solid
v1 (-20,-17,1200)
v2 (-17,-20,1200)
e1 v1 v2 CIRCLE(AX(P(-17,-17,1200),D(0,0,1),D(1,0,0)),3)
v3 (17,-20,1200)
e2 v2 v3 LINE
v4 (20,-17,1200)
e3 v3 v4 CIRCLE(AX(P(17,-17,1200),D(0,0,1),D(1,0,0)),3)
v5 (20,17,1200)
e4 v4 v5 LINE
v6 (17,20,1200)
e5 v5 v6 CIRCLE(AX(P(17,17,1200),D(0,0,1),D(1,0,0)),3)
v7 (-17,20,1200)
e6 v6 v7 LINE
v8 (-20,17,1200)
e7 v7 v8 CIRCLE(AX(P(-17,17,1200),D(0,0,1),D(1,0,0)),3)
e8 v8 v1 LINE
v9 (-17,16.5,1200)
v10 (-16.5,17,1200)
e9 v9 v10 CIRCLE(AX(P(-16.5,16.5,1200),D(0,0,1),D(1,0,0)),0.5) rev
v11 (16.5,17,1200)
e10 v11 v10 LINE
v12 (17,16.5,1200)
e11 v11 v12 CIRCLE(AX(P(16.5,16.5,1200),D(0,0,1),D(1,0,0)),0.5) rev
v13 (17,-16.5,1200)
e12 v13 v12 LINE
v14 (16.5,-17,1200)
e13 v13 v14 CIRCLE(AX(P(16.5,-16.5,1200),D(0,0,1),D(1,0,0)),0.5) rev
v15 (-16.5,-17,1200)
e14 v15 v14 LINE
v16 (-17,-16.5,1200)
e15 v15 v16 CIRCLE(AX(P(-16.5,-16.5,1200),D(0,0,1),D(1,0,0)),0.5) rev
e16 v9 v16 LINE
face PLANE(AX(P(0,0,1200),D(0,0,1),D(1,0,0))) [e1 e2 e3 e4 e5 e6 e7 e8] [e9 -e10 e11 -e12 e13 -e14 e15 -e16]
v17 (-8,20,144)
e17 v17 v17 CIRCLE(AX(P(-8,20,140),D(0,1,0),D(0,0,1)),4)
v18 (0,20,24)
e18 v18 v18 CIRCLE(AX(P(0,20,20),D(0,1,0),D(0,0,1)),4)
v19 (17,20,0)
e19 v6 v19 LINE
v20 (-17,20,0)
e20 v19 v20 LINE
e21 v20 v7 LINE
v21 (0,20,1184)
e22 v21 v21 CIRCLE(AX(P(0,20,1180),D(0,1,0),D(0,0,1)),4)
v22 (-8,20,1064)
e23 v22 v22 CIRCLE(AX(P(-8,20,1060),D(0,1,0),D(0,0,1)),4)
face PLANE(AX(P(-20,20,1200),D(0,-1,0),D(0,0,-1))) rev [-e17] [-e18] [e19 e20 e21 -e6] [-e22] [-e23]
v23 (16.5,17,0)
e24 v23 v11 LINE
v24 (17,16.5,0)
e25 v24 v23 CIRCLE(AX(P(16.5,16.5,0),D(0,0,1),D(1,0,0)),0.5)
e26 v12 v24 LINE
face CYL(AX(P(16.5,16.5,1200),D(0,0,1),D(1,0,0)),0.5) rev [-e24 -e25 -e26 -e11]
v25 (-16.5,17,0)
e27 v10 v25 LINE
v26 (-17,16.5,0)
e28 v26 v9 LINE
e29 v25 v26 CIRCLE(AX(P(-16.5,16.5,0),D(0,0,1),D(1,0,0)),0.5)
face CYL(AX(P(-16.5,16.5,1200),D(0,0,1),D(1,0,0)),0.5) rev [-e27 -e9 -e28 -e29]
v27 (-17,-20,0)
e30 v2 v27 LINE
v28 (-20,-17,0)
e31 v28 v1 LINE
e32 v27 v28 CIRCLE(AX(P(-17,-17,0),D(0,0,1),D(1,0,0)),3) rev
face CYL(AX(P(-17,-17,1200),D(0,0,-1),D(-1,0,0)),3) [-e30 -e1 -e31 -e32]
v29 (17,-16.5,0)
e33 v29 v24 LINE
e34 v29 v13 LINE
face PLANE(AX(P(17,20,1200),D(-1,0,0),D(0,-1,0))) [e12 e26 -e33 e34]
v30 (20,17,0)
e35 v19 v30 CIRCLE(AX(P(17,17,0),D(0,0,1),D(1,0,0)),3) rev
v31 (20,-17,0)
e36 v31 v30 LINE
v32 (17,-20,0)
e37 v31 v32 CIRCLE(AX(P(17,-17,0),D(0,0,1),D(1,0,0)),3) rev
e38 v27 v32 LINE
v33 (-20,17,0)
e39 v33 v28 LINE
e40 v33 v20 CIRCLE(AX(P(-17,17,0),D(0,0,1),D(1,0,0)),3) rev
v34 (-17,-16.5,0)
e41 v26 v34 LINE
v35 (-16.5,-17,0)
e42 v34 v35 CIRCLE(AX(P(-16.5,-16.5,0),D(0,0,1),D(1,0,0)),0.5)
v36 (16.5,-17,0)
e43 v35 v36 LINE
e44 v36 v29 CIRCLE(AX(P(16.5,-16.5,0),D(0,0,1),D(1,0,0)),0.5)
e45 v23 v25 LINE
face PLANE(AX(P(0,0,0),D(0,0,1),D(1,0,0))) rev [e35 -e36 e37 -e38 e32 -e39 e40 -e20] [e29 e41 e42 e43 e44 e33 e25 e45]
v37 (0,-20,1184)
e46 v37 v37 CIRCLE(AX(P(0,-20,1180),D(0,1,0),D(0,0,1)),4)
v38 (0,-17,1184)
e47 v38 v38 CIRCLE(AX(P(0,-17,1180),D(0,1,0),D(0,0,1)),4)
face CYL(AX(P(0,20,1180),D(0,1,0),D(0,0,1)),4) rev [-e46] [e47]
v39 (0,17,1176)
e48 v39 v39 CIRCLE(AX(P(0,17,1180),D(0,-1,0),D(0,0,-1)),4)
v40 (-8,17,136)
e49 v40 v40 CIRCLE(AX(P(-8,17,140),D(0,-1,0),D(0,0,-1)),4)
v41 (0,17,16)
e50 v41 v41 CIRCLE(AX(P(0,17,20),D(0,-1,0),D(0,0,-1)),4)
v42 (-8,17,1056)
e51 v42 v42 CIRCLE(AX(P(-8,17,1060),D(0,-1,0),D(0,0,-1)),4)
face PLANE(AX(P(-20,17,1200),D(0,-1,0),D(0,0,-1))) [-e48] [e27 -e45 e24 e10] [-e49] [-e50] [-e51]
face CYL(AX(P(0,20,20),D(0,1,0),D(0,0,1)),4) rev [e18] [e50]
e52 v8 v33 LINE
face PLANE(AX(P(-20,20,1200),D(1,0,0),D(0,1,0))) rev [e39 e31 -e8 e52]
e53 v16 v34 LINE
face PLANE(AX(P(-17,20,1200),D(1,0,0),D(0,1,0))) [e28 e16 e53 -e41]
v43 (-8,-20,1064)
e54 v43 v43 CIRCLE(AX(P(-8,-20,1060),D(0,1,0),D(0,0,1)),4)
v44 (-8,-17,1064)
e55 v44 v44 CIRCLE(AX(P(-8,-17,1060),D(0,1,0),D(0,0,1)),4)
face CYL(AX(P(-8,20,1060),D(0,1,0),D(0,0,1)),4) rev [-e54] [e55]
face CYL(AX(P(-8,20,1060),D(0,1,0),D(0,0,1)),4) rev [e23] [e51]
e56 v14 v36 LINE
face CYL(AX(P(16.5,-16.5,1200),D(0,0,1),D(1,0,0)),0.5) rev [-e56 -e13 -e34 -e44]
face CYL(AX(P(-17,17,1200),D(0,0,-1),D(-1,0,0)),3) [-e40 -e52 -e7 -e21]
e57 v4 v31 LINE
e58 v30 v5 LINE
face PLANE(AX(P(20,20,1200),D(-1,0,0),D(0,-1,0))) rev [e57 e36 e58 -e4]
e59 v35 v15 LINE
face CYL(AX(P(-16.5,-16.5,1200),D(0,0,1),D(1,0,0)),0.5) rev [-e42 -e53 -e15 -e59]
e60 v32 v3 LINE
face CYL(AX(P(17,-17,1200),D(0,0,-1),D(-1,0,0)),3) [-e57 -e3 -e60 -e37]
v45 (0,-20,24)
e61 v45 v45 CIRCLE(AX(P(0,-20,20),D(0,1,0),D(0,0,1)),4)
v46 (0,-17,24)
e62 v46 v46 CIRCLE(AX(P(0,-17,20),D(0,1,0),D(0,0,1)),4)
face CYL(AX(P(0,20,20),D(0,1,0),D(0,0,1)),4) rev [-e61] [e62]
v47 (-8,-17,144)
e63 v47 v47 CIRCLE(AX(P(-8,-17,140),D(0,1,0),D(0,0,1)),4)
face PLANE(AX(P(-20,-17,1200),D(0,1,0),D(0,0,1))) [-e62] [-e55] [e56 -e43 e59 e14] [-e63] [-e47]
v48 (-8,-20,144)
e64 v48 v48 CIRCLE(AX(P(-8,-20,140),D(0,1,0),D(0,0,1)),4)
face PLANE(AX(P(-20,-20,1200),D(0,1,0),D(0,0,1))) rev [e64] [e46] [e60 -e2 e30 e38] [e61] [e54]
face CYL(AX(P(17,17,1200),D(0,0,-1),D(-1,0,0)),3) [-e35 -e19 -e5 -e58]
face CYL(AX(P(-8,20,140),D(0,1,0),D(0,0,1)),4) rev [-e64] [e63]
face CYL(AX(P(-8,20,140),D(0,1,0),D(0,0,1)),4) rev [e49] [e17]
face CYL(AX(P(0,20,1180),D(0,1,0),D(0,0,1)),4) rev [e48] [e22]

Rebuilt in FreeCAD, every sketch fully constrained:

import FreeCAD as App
import Part
import Sketcher
from FreeCAD import Vector
Q = App.Units.Quantity


def edges_at(feature, points):
    """Names of the edges that pass closest to the given points."""
    edges = feature.Shape.Edges
    near = lambda p: min(range(len(edges)), key=lambda i: edges[i].distToShape(Part.Vertex(*p))[0])
    return sorted({f"Edge{near(p) + 1}" for p in points})

doc = App.newDocument("Part")
params = doc.addObject("Spreadsheet::Sheet", "Params")
for row, (alias, value) in enumerate([
    ("sketch1_width", "40 mm"),
    ("sketch1_width2", "34 mm"),
    ("pad1_length", "1200 mm"),
    ("fillet_radius", "0.5 mm"),
    ("fillet2_radius", "3 mm"),
    ("sketch2_diameter", "8 mm"),
    ("hole_diameter", "8 mm"),
    ("sketch3_diameter", "8 mm"),
    ("hole2_diameter", "8 mm"),
], start=1):
    params.set(f"A{row}", alias)
    params.set(f"B{row}", "=" + value)
    params.setAlias(f"B{row}", alias)

body = doc.addObject("PartDesign::Body", "Body")

sketch1 = body.newObject("Sketcher::SketchObject", "Sketch")
sketch1.AttachmentSupport = (doc.getObject("XY_Plane"), [""])
sketch1.MapMode = "FlatFace"
sketch1.addGeometry([
    Part.LineSegment(Vector(-20, 20, 0), Vector(-20, -20, 0)),
    Part.LineSegment(Vector(-20, -20, 0), Vector(20, -20, 0)),
    Part.LineSegment(Vector(20, -20, 0), Vector(20, 20, 0)),
    Part.LineSegment(Vector(20, 20, 0), Vector(-20, 20, 0)),
    Part.LineSegment(Vector(17, -17, 0), Vector(-17, -17, 0)),
    Part.LineSegment(Vector(-17, -17, 0), Vector(-17, 17, 0)),
    Part.LineSegment(Vector(-17, 17, 0), Vector(17, 17, 0)),
    Part.LineSegment(Vector(17, 17, 0), Vector(17, -17, 0)),
], False)
sketch1.addConstraint([
    Sketcher.Constraint("Coincident", 0, 2, 1, 1),
    Sketcher.Constraint("Coincident", 1, 2, 2, 1),
    Sketcher.Constraint("Coincident", 2, 2, 3, 1),
    Sketcher.Constraint("Coincident", 3, 2, 0, 1),
    Sketcher.Constraint("Coincident", 4, 2, 5, 1),
    Sketcher.Constraint("Coincident", 5, 2, 6, 1),
    Sketcher.Constraint("Coincident", 6, 2, 7, 1),
    Sketcher.Constraint("Coincident", 7, 2, 4, 1),
    Sketcher.Constraint("Vertical", 0),
    Sketcher.Constraint("Horizontal", 1),
    Sketcher.Constraint("Vertical", 2),
    Sketcher.Constraint("Horizontal", 3),
    Sketcher.Constraint("Horizontal", 4),
    Sketcher.Constraint("Vertical", 5),
    Sketcher.Constraint("Horizontal", 6),
    Sketcher.Constraint("Vertical", 7),
    Sketcher.Constraint("Symmetric", 0, 2, 2, 2, -1, 1),
    Sketcher.Constraint("Symmetric", 4, 2, 6, 2, -1, 1),
    Sketcher.Constraint("Equal", 3, 0),
    Sketcher.Constraint("Equal", 6, 5),
    Sketcher.Constraint("DistanceX", 1, 1, 1, 2, Q("40 mm")),
    Sketcher.Constraint("DistanceX", 4, 2, 4, 1, Q("34 mm")),
])
sketch1.setExpression("Constraints[20]", "Params.sketch1_width")
sketch1.setExpression("Constraints[21]", "Params.sketch1_width2")
pad1 = body.newObject("PartDesign::Pad", "Pad")
pad1.Profile = sketch1
pad1.setExpression("Length", "Params.pad1_length")
doc.recompute()

fillet = body.newObject("PartDesign::Fillet", "Fillet")
fillet.Base = (pad1, edges_at(pad1, [
    (17, -17, 600),
    (17, 17, 600),
    (-17, 17, 600),
    (-17, -17, 600),
]))
fillet.setExpression("Radius", "Params.fillet_radius")
doc.recompute()

fillet2 = body.newObject("PartDesign::Fillet", "Fillet001")
fillet2.Base = (fillet, edges_at(fillet, [
    (20, -20, 600),
    (-20, -20, 600),
    (-20, 20, 600),
    (20, 20, 600),
]))
fillet2.setExpression("Radius", "Params.fillet2_radius")

sketch2 = body.newObject("Sketcher::SketchObject", "Sketch001")
sketch2.AttachmentSupport = (doc.getObject("XZ_Plane"), [""])
sketch2.MapMode = "FlatFace"
sketch2.AttachmentOffset = App.Placement(Vector(0, 0, -20), App.Rotation())
sketch2.addGeometry([
    Part.Circle(Vector(0, 20, 0), Vector(0, 0, 1), 4),
    Part.Circle(Vector(0, 1180, 0), Vector(0, 0, 1), 4),
], False)
sketch2.addConstraint([
    Sketcher.Constraint("Equal", 0, 1),
    Sketcher.Constraint("PointOnObject", 0, 3, -2),
    Sketcher.Constraint("PointOnObject", 1, 3, -2),
    Sketcher.Constraint("Diameter", 0, Q("8 mm")),
    Sketcher.Constraint("DistanceY", -1, 1, 0, 3, Q("20 mm")),
    Sketcher.Constraint("DistanceY", -1, 1, 1, 3, Q("1180 mm")),
])
sketch2.setExpression("Constraints[3]", "Params.sketch2_diameter")
doc.recompute()
hole = body.newObject("PartDesign::Hole", "Hole")
hole.Profile = sketch2
hole.ThreadType = "None"
hole.setExpression("Diameter", "Params.hole_diameter")
hole.DepthType = "ThroughAll"
hole.Reversed = True

sketch3 = body.newObject("Sketcher::SketchObject", "Sketch002")
sketch3.AttachmentSupport = (doc.getObject("XZ_Plane"), [""])
sketch3.MapMode = "FlatFace"
sketch3.AttachmentOffset = App.Placement(Vector(0, 0, -20), App.Rotation())
sketch3.addGeometry([
    Part.Circle(Vector(-8, 1060, 0), Vector(0, 0, 1), 4),
    Part.Circle(Vector(-8, 140, 0), Vector(0, 0, 1), 4),
], False)
sketch3.addConstraint([
    Sketcher.Constraint("Equal", 0, 1),
    Sketcher.Constraint("Vertical", 0, 3, 1, 3),
    Sketcher.Constraint("Diameter", 0, Q("8 mm")),
    Sketcher.Constraint("DistanceX", 0, 3, -1, 1, Q("8 mm")),
    Sketcher.Constraint("DistanceY", -1, 1, 0, 3, Q("1060 mm")),
    Sketcher.Constraint("DistanceY", -1, 1, 1, 3, Q("140 mm")),
])
sketch3.setExpression("Constraints[2]", "Params.sketch3_diameter")
doc.recompute()
hole2 = body.newObject("PartDesign::Hole", "Hole001")
hole2.Profile = sketch3
hole2.ThreadType = "None"
hole2.setExpression("Diameter", "Params.hole2_diameter")
hole2.DepthType = "ThroughAll"
hole2.Reversed = True

doc.recompute()
